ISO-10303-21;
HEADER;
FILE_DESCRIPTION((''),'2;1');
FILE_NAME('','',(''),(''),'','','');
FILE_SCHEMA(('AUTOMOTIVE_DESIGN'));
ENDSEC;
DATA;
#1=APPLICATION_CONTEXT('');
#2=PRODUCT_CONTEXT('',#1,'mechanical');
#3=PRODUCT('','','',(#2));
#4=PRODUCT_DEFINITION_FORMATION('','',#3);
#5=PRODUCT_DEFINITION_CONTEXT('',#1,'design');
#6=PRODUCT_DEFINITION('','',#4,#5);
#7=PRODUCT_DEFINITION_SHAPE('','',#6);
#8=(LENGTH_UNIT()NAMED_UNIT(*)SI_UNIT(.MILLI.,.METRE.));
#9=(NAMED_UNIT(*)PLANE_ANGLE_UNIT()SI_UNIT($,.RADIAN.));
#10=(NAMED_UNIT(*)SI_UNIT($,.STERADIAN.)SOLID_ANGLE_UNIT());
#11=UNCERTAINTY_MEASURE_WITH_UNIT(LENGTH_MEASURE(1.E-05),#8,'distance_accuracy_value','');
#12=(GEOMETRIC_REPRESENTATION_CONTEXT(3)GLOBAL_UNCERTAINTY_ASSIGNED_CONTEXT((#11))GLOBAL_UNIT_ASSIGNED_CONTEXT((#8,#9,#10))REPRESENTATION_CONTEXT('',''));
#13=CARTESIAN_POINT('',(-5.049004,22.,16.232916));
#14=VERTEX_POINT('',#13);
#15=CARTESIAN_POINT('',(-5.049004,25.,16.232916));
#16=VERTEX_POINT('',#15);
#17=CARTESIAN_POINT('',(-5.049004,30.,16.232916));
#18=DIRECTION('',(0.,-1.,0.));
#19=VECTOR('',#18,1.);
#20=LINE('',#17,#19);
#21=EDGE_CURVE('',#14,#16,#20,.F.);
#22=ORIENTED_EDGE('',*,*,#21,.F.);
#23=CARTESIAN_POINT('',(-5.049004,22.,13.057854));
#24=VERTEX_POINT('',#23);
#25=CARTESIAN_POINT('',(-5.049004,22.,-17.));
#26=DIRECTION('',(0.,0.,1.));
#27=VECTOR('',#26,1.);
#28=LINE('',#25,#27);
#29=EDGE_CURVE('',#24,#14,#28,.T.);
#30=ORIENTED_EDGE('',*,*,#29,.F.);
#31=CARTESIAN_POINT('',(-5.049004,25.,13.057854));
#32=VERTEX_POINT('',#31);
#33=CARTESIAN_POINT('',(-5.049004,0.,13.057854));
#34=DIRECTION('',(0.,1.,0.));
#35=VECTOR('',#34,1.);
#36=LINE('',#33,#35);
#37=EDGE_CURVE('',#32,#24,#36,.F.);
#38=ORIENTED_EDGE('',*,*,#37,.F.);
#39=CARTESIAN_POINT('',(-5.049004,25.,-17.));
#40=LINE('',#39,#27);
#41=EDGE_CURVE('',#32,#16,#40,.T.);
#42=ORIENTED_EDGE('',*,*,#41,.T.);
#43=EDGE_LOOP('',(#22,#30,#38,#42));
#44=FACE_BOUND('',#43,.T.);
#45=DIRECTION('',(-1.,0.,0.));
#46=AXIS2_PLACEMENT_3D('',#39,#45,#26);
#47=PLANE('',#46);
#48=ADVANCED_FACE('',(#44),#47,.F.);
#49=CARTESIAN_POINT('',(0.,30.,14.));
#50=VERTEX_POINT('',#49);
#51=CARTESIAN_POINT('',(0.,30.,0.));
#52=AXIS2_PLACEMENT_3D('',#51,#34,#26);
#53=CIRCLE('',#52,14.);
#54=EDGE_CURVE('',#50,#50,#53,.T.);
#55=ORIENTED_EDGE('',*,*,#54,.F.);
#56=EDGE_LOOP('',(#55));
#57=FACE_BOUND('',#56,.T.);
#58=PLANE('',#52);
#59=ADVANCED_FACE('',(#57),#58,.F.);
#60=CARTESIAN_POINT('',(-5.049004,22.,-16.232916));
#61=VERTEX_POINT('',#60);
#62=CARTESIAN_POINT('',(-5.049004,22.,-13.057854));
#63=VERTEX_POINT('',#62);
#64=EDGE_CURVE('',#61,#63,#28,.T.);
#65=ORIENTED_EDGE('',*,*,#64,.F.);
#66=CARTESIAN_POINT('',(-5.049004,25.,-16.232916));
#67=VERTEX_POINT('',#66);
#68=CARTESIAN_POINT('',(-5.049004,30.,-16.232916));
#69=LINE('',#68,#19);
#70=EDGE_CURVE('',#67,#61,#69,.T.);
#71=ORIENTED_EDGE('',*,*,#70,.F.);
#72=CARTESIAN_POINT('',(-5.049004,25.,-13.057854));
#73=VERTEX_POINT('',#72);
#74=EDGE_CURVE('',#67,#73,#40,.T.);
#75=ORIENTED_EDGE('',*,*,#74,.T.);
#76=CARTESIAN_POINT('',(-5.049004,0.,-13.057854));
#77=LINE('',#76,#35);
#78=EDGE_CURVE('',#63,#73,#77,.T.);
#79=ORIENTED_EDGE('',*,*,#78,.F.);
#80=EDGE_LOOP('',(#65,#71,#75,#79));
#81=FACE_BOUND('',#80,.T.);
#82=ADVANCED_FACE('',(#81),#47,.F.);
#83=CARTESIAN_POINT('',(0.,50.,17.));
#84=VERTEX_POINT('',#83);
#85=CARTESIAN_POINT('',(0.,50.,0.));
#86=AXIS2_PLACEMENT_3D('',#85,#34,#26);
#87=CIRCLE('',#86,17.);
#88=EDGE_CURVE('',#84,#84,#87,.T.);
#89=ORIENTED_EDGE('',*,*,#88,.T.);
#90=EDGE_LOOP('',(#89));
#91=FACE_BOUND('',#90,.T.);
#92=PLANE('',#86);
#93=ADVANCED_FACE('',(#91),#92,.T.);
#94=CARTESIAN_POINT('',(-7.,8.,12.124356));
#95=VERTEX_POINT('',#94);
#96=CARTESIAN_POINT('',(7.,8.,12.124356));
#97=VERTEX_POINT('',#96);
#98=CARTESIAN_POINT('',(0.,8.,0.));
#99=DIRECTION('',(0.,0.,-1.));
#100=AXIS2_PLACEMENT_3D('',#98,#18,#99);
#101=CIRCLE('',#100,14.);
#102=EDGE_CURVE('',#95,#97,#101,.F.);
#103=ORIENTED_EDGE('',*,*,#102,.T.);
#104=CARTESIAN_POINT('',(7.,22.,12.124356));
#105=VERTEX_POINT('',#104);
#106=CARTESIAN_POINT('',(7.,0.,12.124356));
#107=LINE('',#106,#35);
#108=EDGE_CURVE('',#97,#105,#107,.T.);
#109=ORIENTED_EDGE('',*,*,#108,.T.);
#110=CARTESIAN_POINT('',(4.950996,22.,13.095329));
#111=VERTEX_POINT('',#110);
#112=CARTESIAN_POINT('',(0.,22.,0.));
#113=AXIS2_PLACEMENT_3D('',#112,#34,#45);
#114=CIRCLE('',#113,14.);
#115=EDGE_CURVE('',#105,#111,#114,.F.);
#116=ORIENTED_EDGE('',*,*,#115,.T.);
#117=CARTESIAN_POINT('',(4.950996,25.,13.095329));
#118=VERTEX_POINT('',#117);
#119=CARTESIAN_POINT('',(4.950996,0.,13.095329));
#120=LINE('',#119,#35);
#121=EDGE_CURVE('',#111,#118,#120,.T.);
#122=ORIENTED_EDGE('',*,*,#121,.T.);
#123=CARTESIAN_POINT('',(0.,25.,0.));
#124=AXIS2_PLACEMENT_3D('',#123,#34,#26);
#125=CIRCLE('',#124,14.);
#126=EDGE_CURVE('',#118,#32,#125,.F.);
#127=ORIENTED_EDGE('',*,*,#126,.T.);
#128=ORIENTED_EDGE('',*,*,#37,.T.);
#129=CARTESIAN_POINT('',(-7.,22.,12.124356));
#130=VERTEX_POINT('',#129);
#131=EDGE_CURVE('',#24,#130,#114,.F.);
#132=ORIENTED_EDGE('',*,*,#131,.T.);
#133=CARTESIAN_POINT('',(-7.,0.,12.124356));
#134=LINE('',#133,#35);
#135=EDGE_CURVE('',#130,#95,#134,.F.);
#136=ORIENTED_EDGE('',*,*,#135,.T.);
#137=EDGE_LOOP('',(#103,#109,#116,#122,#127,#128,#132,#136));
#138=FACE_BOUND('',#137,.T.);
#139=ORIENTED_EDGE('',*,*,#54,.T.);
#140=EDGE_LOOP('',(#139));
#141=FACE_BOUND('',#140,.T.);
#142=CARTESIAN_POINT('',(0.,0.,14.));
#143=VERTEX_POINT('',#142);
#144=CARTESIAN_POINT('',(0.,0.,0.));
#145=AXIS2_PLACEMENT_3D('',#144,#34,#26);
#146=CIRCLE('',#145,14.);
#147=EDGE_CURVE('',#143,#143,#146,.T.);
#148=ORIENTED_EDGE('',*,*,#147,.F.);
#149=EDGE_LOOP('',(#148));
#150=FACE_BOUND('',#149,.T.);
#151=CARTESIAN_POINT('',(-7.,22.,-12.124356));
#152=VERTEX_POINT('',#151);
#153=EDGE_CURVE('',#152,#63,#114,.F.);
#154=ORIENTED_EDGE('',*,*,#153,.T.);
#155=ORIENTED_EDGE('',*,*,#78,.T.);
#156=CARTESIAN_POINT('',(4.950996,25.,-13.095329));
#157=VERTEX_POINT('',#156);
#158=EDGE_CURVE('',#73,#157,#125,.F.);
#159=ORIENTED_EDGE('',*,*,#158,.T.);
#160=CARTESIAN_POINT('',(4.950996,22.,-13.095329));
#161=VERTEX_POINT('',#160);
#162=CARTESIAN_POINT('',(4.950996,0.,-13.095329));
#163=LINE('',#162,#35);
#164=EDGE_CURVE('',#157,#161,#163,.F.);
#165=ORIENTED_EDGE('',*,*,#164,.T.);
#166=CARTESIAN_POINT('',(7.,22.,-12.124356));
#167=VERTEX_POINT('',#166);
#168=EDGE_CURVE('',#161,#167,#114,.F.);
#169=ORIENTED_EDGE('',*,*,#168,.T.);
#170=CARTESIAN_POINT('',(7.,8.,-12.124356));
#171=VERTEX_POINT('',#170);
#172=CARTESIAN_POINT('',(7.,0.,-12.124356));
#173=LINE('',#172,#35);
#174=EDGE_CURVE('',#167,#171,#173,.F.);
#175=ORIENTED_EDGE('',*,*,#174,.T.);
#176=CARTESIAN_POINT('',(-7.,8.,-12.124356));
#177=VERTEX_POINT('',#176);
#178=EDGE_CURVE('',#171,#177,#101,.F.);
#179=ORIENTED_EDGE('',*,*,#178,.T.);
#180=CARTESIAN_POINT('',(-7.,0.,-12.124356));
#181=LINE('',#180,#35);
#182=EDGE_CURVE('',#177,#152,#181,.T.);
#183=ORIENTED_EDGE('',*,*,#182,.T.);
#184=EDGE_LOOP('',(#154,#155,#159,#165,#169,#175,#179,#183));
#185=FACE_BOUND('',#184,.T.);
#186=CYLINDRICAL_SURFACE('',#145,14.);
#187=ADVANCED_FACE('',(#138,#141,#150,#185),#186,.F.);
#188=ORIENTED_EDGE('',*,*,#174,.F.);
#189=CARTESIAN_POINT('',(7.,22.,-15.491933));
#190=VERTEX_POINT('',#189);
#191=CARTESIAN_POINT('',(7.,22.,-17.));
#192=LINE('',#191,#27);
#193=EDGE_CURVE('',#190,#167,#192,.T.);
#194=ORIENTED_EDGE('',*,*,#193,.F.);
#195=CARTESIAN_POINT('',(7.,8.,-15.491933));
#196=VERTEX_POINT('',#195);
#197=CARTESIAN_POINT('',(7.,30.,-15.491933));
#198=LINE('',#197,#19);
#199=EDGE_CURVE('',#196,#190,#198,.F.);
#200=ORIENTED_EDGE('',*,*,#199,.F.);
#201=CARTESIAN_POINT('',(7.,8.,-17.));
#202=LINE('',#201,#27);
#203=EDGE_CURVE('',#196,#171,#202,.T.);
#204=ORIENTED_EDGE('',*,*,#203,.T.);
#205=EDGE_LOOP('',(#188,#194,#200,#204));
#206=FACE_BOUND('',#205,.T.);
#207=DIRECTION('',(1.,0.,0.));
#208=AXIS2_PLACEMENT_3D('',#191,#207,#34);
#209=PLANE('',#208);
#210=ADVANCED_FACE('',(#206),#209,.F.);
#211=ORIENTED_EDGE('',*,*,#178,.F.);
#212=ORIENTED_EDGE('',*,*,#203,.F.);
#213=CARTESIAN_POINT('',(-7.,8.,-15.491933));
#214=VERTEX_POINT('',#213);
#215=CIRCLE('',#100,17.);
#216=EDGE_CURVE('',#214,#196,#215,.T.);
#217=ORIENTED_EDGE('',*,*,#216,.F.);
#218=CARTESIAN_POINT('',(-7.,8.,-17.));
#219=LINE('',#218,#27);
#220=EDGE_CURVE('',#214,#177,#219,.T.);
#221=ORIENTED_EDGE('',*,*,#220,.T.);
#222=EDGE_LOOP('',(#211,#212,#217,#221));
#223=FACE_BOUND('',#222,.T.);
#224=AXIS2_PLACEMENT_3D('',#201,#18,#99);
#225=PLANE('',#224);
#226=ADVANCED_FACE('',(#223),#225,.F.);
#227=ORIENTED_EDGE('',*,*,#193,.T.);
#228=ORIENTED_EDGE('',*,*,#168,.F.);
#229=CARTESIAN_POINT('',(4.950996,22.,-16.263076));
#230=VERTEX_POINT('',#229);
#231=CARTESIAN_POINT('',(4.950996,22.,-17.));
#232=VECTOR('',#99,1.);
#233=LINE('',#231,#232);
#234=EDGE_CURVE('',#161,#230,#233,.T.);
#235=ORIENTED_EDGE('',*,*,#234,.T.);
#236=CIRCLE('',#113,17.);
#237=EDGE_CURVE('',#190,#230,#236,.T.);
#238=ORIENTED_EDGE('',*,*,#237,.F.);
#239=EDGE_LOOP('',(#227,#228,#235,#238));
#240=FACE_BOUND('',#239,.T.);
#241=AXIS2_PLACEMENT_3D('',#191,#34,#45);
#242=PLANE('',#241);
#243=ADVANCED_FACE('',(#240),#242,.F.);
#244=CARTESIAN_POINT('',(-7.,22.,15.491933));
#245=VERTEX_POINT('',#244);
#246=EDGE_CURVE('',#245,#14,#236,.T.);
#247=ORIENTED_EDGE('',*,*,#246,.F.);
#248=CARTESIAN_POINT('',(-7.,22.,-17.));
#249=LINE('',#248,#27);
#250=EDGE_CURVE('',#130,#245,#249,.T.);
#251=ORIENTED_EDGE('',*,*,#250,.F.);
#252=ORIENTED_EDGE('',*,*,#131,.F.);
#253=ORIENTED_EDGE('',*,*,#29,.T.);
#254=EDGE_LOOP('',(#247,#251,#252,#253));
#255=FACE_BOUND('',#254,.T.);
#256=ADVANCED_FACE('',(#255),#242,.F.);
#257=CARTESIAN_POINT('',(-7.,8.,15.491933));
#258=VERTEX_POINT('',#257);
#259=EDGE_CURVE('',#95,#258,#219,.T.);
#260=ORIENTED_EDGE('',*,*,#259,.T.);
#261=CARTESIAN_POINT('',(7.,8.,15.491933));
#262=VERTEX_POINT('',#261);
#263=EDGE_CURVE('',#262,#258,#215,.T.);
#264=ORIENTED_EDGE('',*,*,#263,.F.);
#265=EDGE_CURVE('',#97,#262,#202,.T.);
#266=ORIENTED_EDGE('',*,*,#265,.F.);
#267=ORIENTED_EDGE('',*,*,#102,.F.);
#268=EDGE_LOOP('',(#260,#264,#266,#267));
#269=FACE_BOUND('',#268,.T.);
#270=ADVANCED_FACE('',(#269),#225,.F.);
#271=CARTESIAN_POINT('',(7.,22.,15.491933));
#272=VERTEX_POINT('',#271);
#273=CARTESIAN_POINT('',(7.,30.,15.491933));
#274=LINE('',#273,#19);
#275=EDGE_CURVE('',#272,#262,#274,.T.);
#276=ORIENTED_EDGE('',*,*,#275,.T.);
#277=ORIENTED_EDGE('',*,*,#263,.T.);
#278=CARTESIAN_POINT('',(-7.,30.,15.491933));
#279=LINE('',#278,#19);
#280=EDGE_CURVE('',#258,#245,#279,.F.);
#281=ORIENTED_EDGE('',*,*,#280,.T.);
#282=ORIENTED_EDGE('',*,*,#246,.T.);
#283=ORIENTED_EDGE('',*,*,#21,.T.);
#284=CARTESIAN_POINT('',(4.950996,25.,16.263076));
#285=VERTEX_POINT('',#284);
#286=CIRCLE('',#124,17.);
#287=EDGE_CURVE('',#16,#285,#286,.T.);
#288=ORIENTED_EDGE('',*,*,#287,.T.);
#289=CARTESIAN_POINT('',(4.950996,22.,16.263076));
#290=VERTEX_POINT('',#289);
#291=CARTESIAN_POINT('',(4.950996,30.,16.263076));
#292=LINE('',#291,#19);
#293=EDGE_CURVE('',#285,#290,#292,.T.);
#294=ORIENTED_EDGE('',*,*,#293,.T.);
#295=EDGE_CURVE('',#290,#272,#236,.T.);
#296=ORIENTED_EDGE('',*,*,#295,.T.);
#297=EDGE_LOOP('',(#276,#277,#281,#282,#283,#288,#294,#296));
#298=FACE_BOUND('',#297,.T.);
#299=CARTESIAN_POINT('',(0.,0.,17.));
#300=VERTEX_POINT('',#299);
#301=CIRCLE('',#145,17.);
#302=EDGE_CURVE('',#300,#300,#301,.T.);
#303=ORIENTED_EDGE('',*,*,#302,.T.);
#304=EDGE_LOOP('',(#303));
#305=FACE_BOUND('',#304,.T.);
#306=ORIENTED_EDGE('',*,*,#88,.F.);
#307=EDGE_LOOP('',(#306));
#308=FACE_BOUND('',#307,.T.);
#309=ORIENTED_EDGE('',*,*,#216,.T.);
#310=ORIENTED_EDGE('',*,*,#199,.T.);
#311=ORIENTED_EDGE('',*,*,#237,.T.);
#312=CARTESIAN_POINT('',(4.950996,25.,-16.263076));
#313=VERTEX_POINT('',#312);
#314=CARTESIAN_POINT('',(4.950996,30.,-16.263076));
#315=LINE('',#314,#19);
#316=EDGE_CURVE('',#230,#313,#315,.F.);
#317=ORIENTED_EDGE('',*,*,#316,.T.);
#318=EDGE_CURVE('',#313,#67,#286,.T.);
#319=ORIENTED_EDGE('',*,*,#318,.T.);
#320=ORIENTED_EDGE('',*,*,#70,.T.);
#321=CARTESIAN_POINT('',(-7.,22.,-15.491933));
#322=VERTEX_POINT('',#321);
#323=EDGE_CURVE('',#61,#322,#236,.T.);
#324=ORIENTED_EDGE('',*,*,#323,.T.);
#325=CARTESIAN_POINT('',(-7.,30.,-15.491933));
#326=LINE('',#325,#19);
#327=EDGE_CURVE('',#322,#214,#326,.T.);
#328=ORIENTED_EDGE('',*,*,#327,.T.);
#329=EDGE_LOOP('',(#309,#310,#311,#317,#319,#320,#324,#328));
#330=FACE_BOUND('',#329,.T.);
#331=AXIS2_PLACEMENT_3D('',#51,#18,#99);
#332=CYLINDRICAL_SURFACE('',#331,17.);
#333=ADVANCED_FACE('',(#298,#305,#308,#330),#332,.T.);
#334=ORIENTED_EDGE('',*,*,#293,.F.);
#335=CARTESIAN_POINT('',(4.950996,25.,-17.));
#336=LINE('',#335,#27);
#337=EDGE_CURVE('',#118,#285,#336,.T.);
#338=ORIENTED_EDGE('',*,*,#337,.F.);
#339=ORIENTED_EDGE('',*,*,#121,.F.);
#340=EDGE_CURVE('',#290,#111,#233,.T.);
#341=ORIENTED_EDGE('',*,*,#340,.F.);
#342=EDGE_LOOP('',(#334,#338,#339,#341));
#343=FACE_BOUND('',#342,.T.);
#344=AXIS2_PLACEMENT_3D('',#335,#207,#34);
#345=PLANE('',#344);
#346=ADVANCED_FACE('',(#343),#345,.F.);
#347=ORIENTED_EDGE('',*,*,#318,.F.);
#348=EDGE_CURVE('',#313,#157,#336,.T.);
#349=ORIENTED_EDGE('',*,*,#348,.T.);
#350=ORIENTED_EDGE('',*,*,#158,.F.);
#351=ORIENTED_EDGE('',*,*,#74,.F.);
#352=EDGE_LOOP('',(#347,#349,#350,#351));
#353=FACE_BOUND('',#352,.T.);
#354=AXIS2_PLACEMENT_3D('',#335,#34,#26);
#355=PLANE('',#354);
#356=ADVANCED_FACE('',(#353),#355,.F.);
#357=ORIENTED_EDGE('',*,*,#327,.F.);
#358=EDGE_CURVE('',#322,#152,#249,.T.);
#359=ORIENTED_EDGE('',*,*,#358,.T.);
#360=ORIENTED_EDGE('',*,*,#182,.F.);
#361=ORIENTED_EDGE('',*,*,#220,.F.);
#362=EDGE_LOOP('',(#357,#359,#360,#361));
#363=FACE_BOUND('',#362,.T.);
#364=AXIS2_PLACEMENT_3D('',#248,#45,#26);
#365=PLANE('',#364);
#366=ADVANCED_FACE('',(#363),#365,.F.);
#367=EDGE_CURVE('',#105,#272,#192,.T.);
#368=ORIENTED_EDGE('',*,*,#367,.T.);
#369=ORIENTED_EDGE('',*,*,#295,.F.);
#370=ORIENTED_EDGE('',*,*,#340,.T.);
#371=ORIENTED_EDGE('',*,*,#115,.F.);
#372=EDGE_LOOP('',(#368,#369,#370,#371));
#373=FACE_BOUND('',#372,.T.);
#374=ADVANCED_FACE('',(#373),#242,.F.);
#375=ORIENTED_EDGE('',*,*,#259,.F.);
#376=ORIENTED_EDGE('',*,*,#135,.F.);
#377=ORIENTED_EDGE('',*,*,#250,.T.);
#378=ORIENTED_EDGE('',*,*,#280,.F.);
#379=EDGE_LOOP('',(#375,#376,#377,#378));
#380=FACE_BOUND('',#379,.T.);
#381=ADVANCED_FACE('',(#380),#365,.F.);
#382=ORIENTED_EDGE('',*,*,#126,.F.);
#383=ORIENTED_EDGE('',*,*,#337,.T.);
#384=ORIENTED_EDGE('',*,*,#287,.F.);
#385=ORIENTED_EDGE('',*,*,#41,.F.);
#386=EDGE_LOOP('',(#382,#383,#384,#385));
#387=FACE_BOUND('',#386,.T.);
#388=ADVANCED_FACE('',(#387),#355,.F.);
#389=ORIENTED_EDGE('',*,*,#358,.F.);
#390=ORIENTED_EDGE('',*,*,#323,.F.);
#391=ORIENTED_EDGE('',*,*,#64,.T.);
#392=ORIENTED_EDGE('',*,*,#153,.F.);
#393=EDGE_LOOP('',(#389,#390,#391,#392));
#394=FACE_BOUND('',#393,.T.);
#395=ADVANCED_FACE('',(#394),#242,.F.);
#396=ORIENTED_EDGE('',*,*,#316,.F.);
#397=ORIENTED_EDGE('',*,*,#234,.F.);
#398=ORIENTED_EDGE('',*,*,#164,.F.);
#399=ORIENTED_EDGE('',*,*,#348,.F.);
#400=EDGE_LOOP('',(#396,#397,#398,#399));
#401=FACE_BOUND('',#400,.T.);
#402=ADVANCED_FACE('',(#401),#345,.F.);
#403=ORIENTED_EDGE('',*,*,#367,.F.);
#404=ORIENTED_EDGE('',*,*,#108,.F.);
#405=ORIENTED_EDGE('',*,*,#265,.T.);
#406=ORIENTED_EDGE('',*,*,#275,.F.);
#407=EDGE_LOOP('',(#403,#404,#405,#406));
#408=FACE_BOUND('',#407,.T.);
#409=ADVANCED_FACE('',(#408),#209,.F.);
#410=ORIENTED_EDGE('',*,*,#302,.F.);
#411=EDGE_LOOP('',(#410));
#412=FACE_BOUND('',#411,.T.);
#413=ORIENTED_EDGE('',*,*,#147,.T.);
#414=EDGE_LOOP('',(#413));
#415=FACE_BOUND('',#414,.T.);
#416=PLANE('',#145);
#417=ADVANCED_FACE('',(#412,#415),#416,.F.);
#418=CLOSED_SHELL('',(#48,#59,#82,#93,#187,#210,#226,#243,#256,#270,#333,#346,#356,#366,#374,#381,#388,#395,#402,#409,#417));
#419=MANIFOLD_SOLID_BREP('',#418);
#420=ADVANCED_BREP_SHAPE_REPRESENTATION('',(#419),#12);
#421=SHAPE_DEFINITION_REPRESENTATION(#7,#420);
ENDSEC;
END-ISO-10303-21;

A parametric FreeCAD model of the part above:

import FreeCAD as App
import Part
import Sketcher
from FreeCAD import Vector
Q = App.Units.Quantity

doc = App.newDocument("Part")
body = doc.addObject("PartDesign::Body", "Body")

sketch1 = body.newObject("Sketcher::SketchObject", "Sketch")
sketch1.AttachmentSupport = (doc.getObject("XZ_Plane"), [""])
sketch1.MapMode = "FlatFace"
sketch1.addGeometry(Part.Circle(Vector(0, 0, 0), Vector(0, 0, 1), 17), False)
sketch1.addConstraint([
    Sketcher.Constraint("Coincident", 0, 3, -1, 1),
    Sketcher.Constraint("Diameter", 0, Q("34 mm")),
])
pad1 = body.newObject("PartDesign::Pad", "Pad")
pad1.Profile = sketch1
pad1.Length = 30
pad1.Reversed = True

sketch2 = body.newObject("Sketcher::SketchObject", "Sketch001")
sketch2.AttachmentSupport = (doc.getObject("XZ_Plane"), [""])
sketch2.MapMode = "FlatFace"
sketch2.AttachmentOffset = App.Placement(Vector(0, 0, -30), App.Rotation())
sketch2.addGeometry(Part.Circle(Vector(0, 0, 0), Vector(0, 0, 1), 14), False)
sketch2.addConstraint([
    Sketcher.Constraint("Coincident", 0, 3, -1, 1),
    Sketcher.Constraint("Diameter", 0, Q("28 mm")),
])
pocket1 = body.newObject("PartDesign::Pocket", "Pocket")
pocket1.Profile = sketch2
pocket1.Length = 30
pocket1.Reversed = True

sketch3 = body.newObject("Sketcher::SketchObject", "Sketch002")
sketch3.AttachmentSupport = (doc.getObject("XY_Plane"), [""])
sketch3.MapMode = "FlatFace"
sketch3.addGeometry([
    Part.LineSegment(Vector(-7, 22, 0), Vector(-7, 8, 0)),
    Part.LineSegment(Vector(-7, 8, 0), Vector(7, 8, 0)),
    Part.LineSegment(Vector(7, 8, 0), Vector(7, 22, 0)),
    Part.LineSegment(Vector(7, 22, 0), Vector(-7, 22, 0)),
], False)
sketch3.addConstraint([
    Sketcher.Constraint("Coincident", 0, 2, 1, 1),
    Sketcher.Constraint("Coincident", 1, 2, 2, 1),
    Sketcher.Constraint("Coincident", 2, 2, 3, 1),
    Sketcher.Constraint("Coincident", 3, 2, 0, 1),
    Sketcher.Constraint("Vertical", 0),
    Sketcher.Constraint("Horizontal", 1),
    Sketcher.Constraint("Vertical", 2),
    Sketcher.Constraint("Horizontal", 3),
    Sketcher.Constraint("Equal", 3, 0),
    Sketcher.Constraint("DistanceX", 1, 1, 1, 2, Q("14 mm")),
    Sketcher.Constraint("DistanceX", 0, 2, -1, 1, Q("7 mm")),
    Sketcher.Constraint("DistanceY", -1, 1, 0, 2, Q("8 mm")),
])
pocket2 = body.newObject("PartDesign::Pocket", "Pocket001")
pocket2.Profile = sketch3
pocket2.Type = "ThroughAll"
pocket2.Midplane = True

sketch4 = body.newObject("Sketcher::SketchObject", "Sketch003")
sketch4.AttachmentSupport = (doc.getObject("XZ_Plane"), [""])
sketch4.MapMode = "FlatFace"
sketch4.AttachmentOffset = App.Placement(Vector(0, 0, -30), App.Rotation())
sketch4.addGeometry(Part.Circle(Vector(0, 0, 0), Vector(0, 0, 1), 17), False)
sketch4.addConstraint([
    Sketcher.Constraint("Coincident", 0, 3, -1, 1),
    Sketcher.Constraint("Diameter", 0, Q("34 mm")),
])
pad2 = body.newObject("PartDesign::Pad", "Pad001")
pad2.Profile = sketch4
pad2.Length = 20
pad2.Reversed = True

sketch5 = body.newObject("Sketcher::SketchObject", "Sketch004")
sketch5.AttachmentSupport = (doc.getObject("XY_Plane"), [""])
sketch5.MapMode = "FlatFace"
sketch5.addGeometry([
    Part.LineSegment(Vector(-5.049004, 25, 0), Vector(-5.049004, 19, 0)),
    Part.LineSegment(Vector(-5.049004, 19, 0), Vector(4.950996, 19, 0)),
    Part.LineSegment(Vector(4.950996, 19, 0), Vector(4.950996, 25, 0)),
    Part.LineSegment(Vector(4.950996, 25, 0), Vector(-5.049004, 25, 0)),
], False)
sketch5.addConstraint([
    Sketcher.Constraint("Coincident", 0, 2, 1, 1),
    Sketcher.Constraint("Coincident", 1, 2, 2, 1),
    Sketcher.Constraint("Coincident", 2, 2, 3, 1),
    Sketcher.Constraint("Coincident", 3, 2, 0, 1),
    Sketcher.Constraint("Vertical", 0),
    Sketcher.Constraint("Horizontal", 1),
    Sketcher.Constraint("Vertical", 2),
    Sketcher.Constraint("Horizontal", 3),
    Sketcher.Constraint("DistanceX", 1, 1, 1, 2, Q("10 mm")),
    Sketcher.Constraint("DistanceY", 0, 2, 0, 1, Q("6 mm")),
    Sketcher.Constraint("DistanceY", -1, 1, 0, 2, Q("19 mm")),
    Sketcher.Constraint("DistanceX", 0, 2, -1, 1, Q("5.049004 mm")),
])
pocket3 = body.newObject("PartDesign::Pocket", "Pocket002")
pocket3.Profile = sketch5
pocket3.Type = "ThroughAll"
pocket3.Midplane = True

doc.recompute()
